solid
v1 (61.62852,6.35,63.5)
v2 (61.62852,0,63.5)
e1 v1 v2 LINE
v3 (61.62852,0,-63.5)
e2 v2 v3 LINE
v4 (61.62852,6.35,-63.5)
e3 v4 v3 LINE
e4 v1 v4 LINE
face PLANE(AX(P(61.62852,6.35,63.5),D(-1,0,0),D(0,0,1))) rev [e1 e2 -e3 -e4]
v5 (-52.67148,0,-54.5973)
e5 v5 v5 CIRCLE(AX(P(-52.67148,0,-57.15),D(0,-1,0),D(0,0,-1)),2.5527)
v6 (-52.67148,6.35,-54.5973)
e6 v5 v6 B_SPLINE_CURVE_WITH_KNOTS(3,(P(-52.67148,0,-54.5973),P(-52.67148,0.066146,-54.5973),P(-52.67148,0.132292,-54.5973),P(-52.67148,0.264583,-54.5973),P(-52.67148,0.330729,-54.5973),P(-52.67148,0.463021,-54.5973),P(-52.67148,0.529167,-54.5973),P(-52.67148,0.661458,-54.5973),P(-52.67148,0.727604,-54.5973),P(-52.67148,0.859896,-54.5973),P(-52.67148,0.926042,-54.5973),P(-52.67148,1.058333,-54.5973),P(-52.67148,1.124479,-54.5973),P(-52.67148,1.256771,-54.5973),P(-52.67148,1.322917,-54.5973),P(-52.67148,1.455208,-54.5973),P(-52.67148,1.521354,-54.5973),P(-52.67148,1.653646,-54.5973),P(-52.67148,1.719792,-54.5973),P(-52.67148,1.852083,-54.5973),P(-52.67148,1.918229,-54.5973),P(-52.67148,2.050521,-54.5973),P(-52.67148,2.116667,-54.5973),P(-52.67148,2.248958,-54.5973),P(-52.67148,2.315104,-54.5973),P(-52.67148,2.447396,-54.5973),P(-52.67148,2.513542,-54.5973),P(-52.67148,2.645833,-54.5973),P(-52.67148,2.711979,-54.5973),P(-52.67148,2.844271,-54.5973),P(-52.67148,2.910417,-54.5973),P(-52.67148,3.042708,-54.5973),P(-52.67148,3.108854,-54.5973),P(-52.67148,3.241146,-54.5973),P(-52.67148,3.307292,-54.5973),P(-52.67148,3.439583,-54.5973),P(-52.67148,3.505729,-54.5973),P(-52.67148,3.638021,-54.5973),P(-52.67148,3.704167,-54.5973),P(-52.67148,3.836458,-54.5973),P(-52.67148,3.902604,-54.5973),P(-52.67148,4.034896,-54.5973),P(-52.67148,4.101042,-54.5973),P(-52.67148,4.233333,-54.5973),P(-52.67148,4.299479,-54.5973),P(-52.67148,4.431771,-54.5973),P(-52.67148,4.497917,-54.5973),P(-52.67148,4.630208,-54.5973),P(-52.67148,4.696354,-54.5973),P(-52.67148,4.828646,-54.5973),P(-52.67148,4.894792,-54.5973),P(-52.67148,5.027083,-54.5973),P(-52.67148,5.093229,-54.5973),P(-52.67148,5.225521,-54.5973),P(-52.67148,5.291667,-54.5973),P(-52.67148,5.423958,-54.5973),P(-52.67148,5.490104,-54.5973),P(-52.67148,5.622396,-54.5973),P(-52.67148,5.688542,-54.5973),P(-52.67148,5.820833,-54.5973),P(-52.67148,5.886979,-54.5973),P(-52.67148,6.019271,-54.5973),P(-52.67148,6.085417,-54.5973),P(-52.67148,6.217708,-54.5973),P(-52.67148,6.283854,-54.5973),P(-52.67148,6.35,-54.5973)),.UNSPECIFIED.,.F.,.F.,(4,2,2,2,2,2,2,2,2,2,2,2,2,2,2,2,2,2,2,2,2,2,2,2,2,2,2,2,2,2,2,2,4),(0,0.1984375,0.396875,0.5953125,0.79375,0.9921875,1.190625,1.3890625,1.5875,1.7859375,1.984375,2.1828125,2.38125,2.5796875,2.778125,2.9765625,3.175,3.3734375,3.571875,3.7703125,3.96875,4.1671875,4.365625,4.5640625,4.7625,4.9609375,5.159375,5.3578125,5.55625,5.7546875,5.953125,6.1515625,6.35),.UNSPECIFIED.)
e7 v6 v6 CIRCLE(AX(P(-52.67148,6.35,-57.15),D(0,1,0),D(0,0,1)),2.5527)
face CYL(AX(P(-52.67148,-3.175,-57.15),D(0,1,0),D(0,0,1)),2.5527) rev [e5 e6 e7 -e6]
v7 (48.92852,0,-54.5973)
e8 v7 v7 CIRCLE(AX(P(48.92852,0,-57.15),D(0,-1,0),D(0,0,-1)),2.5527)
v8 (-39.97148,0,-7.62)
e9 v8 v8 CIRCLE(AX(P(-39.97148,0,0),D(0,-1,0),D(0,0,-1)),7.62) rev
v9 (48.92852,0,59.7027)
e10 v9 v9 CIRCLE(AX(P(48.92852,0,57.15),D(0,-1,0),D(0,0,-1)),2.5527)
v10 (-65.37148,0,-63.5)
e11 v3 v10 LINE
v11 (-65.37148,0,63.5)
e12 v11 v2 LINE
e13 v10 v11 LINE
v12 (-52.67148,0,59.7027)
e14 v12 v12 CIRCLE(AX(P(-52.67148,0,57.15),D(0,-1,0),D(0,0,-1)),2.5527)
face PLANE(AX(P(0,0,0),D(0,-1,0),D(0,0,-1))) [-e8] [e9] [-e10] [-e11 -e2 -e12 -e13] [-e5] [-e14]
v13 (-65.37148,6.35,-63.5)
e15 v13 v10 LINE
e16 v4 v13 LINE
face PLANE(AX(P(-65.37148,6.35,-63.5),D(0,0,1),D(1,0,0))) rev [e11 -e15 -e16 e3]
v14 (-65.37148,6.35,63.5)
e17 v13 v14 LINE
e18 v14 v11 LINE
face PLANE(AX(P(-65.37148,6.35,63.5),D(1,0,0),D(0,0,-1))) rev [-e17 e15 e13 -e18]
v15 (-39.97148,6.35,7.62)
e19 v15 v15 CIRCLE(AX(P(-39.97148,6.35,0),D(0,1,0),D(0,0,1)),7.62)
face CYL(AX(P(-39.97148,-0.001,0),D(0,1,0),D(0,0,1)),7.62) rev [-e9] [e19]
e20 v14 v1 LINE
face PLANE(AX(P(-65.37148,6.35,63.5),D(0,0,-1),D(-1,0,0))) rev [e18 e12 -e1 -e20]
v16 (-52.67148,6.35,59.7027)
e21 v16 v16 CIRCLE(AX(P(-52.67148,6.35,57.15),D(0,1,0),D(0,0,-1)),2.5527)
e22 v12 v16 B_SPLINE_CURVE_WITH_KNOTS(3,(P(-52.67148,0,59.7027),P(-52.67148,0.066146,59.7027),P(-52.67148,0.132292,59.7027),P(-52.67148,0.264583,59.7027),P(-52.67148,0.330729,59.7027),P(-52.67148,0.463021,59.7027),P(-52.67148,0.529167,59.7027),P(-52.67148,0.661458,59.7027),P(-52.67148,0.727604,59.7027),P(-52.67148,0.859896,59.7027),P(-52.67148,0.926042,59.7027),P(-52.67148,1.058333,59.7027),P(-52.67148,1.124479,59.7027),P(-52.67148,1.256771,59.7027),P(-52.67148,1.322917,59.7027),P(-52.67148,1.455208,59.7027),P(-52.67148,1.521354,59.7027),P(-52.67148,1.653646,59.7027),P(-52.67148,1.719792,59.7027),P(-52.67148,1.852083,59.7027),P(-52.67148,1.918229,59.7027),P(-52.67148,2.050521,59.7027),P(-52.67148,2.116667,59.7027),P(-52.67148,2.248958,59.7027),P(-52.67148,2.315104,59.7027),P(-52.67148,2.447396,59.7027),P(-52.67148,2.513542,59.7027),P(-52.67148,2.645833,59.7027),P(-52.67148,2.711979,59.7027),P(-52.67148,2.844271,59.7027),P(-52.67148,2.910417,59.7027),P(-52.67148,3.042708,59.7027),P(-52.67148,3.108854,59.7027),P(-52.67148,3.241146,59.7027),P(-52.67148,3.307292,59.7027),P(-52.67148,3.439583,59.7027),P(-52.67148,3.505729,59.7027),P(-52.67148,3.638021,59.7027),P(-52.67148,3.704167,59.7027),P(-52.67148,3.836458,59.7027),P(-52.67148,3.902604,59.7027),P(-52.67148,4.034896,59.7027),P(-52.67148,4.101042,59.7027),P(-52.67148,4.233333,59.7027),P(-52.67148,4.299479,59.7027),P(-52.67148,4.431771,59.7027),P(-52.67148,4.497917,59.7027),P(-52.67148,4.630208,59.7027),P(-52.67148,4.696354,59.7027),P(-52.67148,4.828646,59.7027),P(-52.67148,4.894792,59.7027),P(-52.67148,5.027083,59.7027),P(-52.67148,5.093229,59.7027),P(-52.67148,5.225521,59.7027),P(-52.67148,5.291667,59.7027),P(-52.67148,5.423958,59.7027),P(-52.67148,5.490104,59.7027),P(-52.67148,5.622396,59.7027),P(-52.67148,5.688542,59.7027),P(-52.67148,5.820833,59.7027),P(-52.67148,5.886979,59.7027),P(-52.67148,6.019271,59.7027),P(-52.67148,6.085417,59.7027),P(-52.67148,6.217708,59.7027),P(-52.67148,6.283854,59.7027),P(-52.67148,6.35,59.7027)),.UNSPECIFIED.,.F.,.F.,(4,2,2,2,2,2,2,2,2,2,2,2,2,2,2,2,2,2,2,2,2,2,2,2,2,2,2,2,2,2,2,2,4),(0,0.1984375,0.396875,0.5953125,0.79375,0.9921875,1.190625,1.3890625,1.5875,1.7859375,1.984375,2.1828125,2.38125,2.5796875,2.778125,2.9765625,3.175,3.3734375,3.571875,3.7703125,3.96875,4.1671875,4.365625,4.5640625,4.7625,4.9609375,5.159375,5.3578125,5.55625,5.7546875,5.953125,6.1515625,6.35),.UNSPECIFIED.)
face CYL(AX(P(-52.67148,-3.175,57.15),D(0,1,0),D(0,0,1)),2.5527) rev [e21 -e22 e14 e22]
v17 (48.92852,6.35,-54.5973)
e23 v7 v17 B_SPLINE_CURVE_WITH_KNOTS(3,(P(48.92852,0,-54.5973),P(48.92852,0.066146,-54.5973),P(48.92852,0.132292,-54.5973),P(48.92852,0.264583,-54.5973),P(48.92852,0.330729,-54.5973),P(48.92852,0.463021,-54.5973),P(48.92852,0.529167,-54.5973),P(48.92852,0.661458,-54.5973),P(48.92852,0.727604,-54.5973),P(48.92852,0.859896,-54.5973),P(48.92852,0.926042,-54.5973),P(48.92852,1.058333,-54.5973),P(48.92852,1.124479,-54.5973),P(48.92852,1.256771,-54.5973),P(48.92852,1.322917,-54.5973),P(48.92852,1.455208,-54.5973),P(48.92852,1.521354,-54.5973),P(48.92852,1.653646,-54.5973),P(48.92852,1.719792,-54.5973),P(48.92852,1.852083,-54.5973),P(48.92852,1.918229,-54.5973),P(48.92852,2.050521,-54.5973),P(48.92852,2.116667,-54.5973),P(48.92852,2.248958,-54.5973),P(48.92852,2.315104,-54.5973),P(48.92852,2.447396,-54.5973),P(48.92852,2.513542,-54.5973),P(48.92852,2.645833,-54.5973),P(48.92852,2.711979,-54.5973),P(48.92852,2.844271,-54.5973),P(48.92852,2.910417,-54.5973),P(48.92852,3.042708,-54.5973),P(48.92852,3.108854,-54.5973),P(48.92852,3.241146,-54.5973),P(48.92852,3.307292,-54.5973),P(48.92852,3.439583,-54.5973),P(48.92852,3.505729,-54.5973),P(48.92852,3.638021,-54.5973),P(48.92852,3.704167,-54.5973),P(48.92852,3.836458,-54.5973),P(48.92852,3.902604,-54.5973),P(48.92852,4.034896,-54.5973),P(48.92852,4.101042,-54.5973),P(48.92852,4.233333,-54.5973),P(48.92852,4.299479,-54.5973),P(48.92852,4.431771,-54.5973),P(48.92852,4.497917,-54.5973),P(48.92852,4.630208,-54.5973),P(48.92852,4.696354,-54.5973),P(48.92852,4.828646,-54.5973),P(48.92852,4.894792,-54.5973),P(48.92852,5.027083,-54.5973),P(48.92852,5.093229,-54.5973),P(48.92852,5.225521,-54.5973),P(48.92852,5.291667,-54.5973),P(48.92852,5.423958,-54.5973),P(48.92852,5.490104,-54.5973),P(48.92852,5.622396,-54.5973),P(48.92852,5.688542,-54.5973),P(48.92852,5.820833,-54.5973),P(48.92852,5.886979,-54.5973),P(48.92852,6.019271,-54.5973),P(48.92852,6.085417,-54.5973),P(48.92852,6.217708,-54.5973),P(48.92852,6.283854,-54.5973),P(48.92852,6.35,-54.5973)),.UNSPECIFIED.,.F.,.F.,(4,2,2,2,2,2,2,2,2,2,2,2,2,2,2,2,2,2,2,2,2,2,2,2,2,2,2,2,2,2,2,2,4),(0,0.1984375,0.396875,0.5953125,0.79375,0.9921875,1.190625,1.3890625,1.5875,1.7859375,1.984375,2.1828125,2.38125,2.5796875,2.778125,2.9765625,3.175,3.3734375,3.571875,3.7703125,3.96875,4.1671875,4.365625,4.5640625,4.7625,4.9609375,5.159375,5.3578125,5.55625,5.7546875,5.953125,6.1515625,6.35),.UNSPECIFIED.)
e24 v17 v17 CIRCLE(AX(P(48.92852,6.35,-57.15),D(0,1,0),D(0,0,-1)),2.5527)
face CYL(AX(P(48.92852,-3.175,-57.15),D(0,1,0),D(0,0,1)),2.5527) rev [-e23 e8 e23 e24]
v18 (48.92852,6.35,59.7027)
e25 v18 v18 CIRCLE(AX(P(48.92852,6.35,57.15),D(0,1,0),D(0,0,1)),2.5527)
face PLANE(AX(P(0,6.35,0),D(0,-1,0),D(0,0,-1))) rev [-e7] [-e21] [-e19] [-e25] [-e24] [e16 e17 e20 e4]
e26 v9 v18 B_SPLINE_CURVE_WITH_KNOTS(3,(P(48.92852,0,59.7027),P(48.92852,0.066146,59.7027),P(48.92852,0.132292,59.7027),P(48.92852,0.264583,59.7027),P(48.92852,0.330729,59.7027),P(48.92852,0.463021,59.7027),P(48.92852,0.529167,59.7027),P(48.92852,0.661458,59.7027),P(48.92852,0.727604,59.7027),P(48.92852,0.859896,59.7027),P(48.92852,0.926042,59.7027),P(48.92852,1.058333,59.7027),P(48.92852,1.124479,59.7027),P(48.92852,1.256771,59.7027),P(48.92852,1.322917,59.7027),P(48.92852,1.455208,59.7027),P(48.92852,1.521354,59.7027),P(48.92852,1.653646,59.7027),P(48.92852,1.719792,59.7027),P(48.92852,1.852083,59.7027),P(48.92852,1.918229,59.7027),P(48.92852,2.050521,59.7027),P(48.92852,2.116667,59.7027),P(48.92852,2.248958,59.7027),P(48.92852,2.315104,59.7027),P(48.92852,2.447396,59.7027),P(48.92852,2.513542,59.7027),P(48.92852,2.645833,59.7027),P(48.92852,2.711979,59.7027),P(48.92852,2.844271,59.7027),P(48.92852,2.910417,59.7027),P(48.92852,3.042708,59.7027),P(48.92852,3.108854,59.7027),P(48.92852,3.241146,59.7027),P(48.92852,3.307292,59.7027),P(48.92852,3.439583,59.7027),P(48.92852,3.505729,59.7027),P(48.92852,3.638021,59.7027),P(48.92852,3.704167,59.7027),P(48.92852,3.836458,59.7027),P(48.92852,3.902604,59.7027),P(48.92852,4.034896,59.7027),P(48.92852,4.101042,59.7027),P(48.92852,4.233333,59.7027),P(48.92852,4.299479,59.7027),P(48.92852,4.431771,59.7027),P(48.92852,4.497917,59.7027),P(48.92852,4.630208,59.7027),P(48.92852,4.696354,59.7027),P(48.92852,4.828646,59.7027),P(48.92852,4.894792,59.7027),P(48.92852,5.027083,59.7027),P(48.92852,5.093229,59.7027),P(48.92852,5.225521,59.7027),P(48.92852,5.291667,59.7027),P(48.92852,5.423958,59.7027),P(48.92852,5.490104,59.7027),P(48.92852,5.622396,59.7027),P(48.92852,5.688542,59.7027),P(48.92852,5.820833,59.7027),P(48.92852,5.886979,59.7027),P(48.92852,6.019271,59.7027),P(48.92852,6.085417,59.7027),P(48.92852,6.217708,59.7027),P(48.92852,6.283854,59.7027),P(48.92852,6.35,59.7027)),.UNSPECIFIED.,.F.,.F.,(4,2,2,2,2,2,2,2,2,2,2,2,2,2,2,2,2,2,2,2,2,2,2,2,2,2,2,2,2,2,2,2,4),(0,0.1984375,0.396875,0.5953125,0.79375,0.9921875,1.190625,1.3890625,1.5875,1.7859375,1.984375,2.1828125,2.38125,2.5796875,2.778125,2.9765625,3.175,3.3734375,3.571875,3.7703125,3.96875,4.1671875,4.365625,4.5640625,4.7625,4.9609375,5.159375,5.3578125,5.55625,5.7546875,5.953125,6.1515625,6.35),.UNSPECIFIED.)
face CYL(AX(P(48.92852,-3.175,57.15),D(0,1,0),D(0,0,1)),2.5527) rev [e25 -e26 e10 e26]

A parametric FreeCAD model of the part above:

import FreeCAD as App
import Part
import Sketcher

V = App.Vector
Q = App.Units.Quantity

doc = App.newDocument("Part")
body = doc.addObject("PartDesign::Body", "Body")

# Sketch on XZ plane
sketch1 = body.newObject("Sketcher::SketchObject", "Sketch")
sketch1.AttachmentSupport = (doc.getObject("XZ_Plane"), [""])
sketch1.MapMode = "FlatFace"
sketch1.addGeometry([
    Part.LineSegment(V(-65.37148, -63.5, 0), V(-65.37148, 63.5, 0)),
    Part.LineSegment(V(-65.37148, 63.5, 0), V(61.62852, 63.5, 0)),
    Part.LineSegment(V(61.62852, 63.5, 0), V(61.62852, -63.5, 0)),
    Part.LineSegment(V(61.62852, -63.5, 0), V(-65.37148, -63.5, 0)),
], False)
sketch1.addConstraint([
    Sketcher.Constraint("Coincident", 0, 2, 1, 1),
    Sketcher.Constraint("Coincident", 1, 2, 2, 1),
    Sketcher.Constraint("Coincident", 2, 2, 3, 1),
    Sketcher.Constraint("Coincident", 3, 2, 0, 1),
    Sketcher.Constraint("Vertical", 0),
    Sketcher.Constraint("Horizontal", 1),
    Sketcher.Constraint("Vertical", 2),
    Sketcher.Constraint("Horizontal", 3),
    Sketcher.Constraint("Equal", 3, 0),
    Sketcher.Constraint("DistanceX", 1, 1, 1, 2, Q("5 in")),
    Sketcher.Constraint("DistanceY", -1, 1, 0, 2, Q("2.5 in")),
    Sketcher.Constraint("DistanceX", 0, 2, -1, 1, 65.37148),
])
pad1 = body.newObject("PartDesign::Pad", "Pad")
pad1.Profile = sketch1
pad1.Length = Q("0.25 in")
pad1.Reversed = True

# Sketch on XZ plane
sketch2 = body.newObject("Sketcher::SketchObject", "Sketch001")
sketch2.AttachmentSupport = (doc.getObject("XZ_Plane"), [""])
sketch2.MapMode = "FlatFace"
sketch2.AttachmentOffset = App.Placement(V(0, 0, -0.25 * 25.4), App.Rotation())
sketch2.addGeometry([
    Part.Circle(V(-52.67148, -57.15, 0), V(0, 0, 1), 2.5527),
    Part.Circle(V(-52.67148, 57.15, 0), V(0, 0, 1), 2.5527),
    Part.Circle(V(48.92852, 57.15, 0), V(0, 0, 1), 2.5527),
    Part.Circle(V(48.92852, -57.15, 0), V(0, 0, 1), 2.5527),
], False)
sketch2.addConstraint([
    Sketcher.Constraint("Equal", 0, 1),
    Sketcher.Constraint("Equal", 1, 2),
    Sketcher.Constraint("Equal", 2, 3),
    Sketcher.Constraint("Symmetric", 0, 3, 1, 3, -1),
    Sketcher.Constraint("Symmetric", 2, 3, 3, 3, -1),
    Sketcher.Constraint("Horizontal", 1, 3, 2, 3),
    Sketcher.Constraint("Diameter", 0, Q("0.201 in")),
    Sketcher.Constraint("DistanceX", 1, 3, 2, 3, Q("4 in")),
    Sketcher.Constraint("DistanceY", 0, 3, 1, 3, Q("4.5 in")),
    Sketcher.Constraint("DistanceX", 0, 3, -1, 1, 52.67148),
])
pocket1 = body.newObject("PartDesign::Pocket", "Pocket")
pocket1.Profile = sketch2
pocket1.Length = Q("0.375 in")
pocket1.Reversed = True

# Sketch on XZ plane
sketch3 = body.newObject("Sketcher::SketchObject", "Sketch002")
sketch3.AttachmentSupport = (doc.getObject("XZ_Plane"), [""])
sketch3.MapMode = "FlatFace"
sketch3.AttachmentOffset = App.Placement(V(0, 0, -0.25 * 25.4), App.Rotation())
sketch3.addGeometry(Part.Circle(V(-39.97148, 0, 0), V(0, 0, 1), 7.62), False)
sketch3.addConstraint([
    Sketcher.Constraint("PointOnObject", 0, 3, -1),
    Sketcher.Constraint("Diameter", 0, Q("0.6 in")),
    Sketcher.Constraint("DistanceX", 0, 3, -1, 1, 39.97148),
])
pocket2 = body.newObject("PartDesign::Pocket", "Pocket001")
pocket2.Profile = sketch3
pocket2.Type = "UpToFirst"
pocket2.Reversed = True

doc.recompute()
